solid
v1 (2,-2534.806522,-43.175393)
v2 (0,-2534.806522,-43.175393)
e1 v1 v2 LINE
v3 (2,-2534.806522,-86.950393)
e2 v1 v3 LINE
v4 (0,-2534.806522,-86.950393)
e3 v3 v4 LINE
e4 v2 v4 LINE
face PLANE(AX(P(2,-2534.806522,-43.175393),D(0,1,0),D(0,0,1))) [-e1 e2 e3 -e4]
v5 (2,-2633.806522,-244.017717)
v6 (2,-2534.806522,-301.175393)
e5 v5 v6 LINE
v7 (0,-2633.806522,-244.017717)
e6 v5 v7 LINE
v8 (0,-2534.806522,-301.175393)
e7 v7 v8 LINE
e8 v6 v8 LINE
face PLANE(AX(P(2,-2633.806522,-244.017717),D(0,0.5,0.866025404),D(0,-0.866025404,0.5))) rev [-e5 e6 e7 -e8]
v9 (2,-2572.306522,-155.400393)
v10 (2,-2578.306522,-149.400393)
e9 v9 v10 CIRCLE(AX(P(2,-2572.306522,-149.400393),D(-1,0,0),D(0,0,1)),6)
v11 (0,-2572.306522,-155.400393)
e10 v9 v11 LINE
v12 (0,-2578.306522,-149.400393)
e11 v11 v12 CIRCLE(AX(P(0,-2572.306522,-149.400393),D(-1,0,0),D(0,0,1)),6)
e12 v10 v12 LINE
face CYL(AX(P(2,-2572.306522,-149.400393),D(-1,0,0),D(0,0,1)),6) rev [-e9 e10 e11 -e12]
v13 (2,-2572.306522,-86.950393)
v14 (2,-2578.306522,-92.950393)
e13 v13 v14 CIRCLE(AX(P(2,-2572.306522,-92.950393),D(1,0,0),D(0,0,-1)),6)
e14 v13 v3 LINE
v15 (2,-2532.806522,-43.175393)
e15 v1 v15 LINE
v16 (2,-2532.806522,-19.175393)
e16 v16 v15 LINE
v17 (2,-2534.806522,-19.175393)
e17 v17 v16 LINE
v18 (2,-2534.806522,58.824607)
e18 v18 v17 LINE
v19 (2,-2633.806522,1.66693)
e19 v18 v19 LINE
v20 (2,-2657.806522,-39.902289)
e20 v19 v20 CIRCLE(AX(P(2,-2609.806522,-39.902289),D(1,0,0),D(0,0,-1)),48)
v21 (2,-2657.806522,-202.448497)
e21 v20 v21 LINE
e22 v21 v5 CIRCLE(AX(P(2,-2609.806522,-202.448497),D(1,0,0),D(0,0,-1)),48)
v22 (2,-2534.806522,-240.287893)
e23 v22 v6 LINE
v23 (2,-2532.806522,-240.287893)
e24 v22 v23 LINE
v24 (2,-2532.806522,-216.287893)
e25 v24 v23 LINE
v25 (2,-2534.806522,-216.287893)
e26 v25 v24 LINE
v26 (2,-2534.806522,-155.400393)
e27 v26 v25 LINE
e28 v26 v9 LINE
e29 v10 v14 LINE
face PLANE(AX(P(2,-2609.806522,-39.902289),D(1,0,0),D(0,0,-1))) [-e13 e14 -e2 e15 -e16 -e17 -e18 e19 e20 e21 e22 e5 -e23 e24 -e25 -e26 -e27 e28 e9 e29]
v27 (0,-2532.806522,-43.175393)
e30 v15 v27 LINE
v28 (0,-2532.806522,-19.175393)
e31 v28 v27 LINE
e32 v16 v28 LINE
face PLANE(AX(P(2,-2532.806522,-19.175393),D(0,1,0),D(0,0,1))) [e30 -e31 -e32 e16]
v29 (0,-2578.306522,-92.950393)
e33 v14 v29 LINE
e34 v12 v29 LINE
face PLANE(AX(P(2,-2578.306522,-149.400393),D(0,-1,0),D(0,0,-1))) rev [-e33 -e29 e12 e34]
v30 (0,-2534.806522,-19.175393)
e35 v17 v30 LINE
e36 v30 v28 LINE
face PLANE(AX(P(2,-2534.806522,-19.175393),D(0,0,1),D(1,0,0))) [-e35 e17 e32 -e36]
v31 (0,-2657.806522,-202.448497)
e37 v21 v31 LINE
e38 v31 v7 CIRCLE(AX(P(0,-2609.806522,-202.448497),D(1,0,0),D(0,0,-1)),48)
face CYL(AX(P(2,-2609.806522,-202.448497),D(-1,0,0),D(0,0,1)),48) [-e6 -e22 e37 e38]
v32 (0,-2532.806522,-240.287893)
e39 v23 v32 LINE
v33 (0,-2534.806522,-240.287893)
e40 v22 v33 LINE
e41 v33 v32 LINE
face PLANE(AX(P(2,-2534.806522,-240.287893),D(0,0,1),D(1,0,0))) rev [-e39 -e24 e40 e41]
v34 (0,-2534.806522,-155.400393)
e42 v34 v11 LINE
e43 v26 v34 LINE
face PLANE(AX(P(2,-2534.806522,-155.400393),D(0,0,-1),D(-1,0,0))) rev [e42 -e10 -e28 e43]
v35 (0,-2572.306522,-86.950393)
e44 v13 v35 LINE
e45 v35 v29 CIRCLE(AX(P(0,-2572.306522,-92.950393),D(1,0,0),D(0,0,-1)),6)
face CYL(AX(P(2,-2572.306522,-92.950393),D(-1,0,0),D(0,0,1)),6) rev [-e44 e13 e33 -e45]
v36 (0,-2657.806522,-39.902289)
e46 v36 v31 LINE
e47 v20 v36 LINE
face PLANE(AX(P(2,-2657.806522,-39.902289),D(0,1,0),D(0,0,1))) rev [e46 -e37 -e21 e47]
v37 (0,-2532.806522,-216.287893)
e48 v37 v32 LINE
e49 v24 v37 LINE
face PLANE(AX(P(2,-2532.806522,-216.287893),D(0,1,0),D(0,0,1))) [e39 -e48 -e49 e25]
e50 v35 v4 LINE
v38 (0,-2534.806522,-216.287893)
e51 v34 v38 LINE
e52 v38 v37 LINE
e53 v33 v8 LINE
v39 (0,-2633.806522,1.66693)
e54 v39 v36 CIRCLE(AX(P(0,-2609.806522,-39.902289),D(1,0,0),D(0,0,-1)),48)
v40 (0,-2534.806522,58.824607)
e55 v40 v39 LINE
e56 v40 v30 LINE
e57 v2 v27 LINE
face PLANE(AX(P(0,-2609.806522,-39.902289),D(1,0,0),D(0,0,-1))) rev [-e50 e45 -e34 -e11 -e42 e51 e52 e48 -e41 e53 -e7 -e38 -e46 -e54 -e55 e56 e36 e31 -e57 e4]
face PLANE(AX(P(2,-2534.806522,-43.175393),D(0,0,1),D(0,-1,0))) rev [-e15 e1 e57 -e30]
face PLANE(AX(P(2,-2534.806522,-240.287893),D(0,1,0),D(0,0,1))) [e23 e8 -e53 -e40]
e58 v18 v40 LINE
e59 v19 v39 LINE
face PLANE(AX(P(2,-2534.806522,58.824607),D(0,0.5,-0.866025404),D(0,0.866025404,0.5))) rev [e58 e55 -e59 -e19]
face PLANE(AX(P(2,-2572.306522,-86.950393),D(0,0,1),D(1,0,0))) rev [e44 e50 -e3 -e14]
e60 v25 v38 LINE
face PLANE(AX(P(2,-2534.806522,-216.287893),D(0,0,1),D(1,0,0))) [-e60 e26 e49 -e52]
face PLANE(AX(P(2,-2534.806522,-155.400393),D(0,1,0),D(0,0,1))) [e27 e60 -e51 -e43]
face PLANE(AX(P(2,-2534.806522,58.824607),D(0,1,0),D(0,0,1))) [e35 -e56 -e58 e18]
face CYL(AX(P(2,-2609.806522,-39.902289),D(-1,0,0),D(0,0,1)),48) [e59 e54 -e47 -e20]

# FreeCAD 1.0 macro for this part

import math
import FreeCAD as App
import Part
import Sketcher
Q = App.Units.Quantity

doc = App.newDocument("Part")
body = doc.addObject("PartDesign::Body", "Body")

sketch1 = body.newObject("Sketcher::SketchObject", "Sketch")
sketch1.AttachmentSupport = (doc.getObject("YZ_Plane"), [""])
sketch1.MapMode = "FlatFace"
sketch1.addGeometry([
    Part.LineSegment(App.Vector(-2534.8, 58.8, 0), App.Vector(-2633.8, 1.7, 0)),
    Part.ArcOfCircle(Part.Circle(App.Vector(-2609.8, -39.9, 0), App.Vector(0, 0, 1), 48), math.radians(120), math.radians(180)),
    Part.LineSegment(App.Vector(-2657.8, -39.9, 0), App.Vector(-2657.8, -202.4, 0)),
    Part.ArcOfCircle(Part.Circle(App.Vector(-2609.8, -202.4, 0), App.Vector(0, 0, 1), 48), math.radians(-180), math.radians(-120)),
    Part.LineSegment(App.Vector(-2633.8, -244, 0), App.Vector(-2534.8, -301.2, 0)),
    Part.LineSegment(App.Vector(-2534.8, -301.2, 0), App.Vector(-2534.8, -240.3, 0)),
    Part.LineSegment(App.Vector(-2534.8, -240.3, 0), App.Vector(-2532.8, -240.3, 0)),
    Part.LineSegment(App.Vector(-2532.8, -240.3, 0), App.Vector(-2532.8, -216.3, 0)),
    Part.LineSegment(App.Vector(-2532.8, -216.3, 0), App.Vector(-2534.8, -216.3, 0)),
    Part.LineSegment(App.Vector(-2534.8, -216.3, 0), App.Vector(-2534.8, -155.4, 0)),
    Part.LineSegment(App.Vector(-2534.8, -155.4, 0), App.Vector(-2572.3, -155.4, 0)),
    Part.ArcOfCircle(Part.Circle(App.Vector(-2572.3, -149.4, 0), App.Vector(0, 0, 1), 6), math.radians(180), math.radians(270)),
    Part.LineSegment(App.Vector(-2578.3, -149.4, 0), App.Vector(-2578.3, -93, 0)),
    Part.ArcOfCircle(Part.Circle(App.Vector(-2572.3, -93, 0), App.Vector(0, 0, 1), 6), math.radians(90), math.radians(180)),
    Part.LineSegment(App.Vector(-2572.3, -87, 0), App.Vector(-2534.8, -87, 0)),
    Part.LineSegment(App.Vector(-2534.8, -87, 0), App.Vector(-2534.8, -43.2, 0)),
    Part.LineSegment(App.Vector(-2534.8, -43.2, 0), App.Vector(-2532.8, -43.2, 0)),
    Part.LineSegment(App.Vector(-2532.8, -43.2, 0), App.Vector(-2532.8, -19.2, 0)),
    Part.LineSegment(App.Vector(-2532.8, -19.2, 0), App.Vector(-2534.8, -19.2, 0)),
    Part.LineSegment(App.Vector(-2534.8, -19.2, 0), App.Vector(-2534.8, 58.8, 0)),
], False)
sketch1.addConstraint([
    Sketcher.Constraint("Tangent", 0, 2, 1, 1),
    Sketcher.Constraint("Tangent", 1, 2, 2, 1),
    Sketcher.Constraint("Tangent", 2, 2, 3, 1),
    Sketcher.Constraint("Tangent", 3, 2, 4, 1),
    Sketcher.Constraint("Coincident", 4, 2, 5, 1),
    Sketcher.Constraint("Coincident", 5, 2, 6, 1),
    Sketcher.Constraint("Coincident", 6, 2, 7, 1),
    Sketcher.Constraint("Coincident", 7, 2, 8, 1),
    Sketcher.Constraint("Coincident", 8, 2, 9, 1),
    Sketcher.Constraint("Coincident", 9, 2, 10, 1),
    Sketcher.Constraint("Tangent", 10, 2, 11, 2),
    Sketcher.Constraint("Tangent", 11, 1, 12, 1),
    Sketcher.Constraint("Tangent", 12, 2, 13, 2),
    Sketcher.Constraint("Tangent", 13, 1, 14, 1),
    Sketcher.Constraint("Coincident", 14, 2, 15, 1),
    Sketcher.Constraint("Coincident", 15, 2, 16, 1),
    Sketcher.Constraint("Coincident", 16, 2, 17, 1),
    Sketcher.Constraint("Coincident", 17, 2, 18, 1),
    Sketcher.Constraint("Coincident", 18, 2, 19, 1),
    Sketcher.Constraint("Coincident", 19, 2, 0, 1),
    Sketcher.Constraint("Vertical", 2),
    Sketcher.Constraint("Vertical", 5),
    Sketcher.Constraint("Horizontal", 6),
    Sketcher.Constraint("Vertical", 7),
    Sketcher.Constraint("Horizontal", 8),
    Sketcher.Constraint("Vertical", 9),
    Sketcher.Constraint("Horizontal", 10),
    Sketcher.Constraint("Vertical", 12),
    Sketcher.Constraint("Horizontal", 14),
    Sketcher.Constraint("Vertical", 15),
    Sketcher.Constraint("Horizontal", 16),
    Sketcher.Constraint("Vertical", 17),
    Sketcher.Constraint("Horizontal", 18),
    Sketcher.Constraint("Vertical", 19),
    Sketcher.Constraint("Equal", 1, 3),
    Sketcher.Constraint("Equal", 11, 13),
    Sketcher.Constraint("Vertical", 0, 2, 3, 2),
    Sketcher.Constraint("Vertical", 5, 2, 8, 2),
    Sketcher.Constraint("Vertical", 9, 2, 14, 2),
    Sketcher.Constraint("Vertical", 7, 2, 16, 2),
    Sketcher.Constraint("Vertical", 15, 2, 18, 2),
    Sketcher.Constraint("Equal", 5, 9),
    Sketcher.Constraint("Equal", 7, 17),
    Sketcher.Constraint("Radius", 1, 48.0),
    Sketcher.Constraint("Radius", 11, 6.0),
    Sketcher.Constraint("DistanceX", 6, 1, 6, 2, 2.0),
    Sketcher.Constraint("DistanceY", 7, 1, 7, 2, 24.0),
    Sketcher.Constraint("DistanceY", 19, 1, 19, 2, 78.0),
    Sketcher.Constraint("Angle", 0, Q("-150 deg")),
    Sketcher.Constraint("DistanceX", 10, 2, 10, 1, 37.5),
    Sketcher.Constraint("DistanceX", 3, 2, 4, 2, 99.0),
    Sketcher.Constraint("DistanceY", 12, 1, 12, 2, 56.45),
    Sketcher.Constraint("DistanceY", 15, 1, 15, 2, 43.775),
    Sketcher.Constraint("DistanceY", 5, 1, 5, 2, 60.8875),
    Sketcher.Constraint("DistanceY", 1, 3, -1, 1, 39.902289),
    Sketcher.Constraint("DistanceX", 1, 3, -1, 1, 2609.806522),
])
pad1 = body.newObject("PartDesign::Pad", "Pad")
pad1.Profile = sketch1
pad1.Length = 2

doc.recompute()
